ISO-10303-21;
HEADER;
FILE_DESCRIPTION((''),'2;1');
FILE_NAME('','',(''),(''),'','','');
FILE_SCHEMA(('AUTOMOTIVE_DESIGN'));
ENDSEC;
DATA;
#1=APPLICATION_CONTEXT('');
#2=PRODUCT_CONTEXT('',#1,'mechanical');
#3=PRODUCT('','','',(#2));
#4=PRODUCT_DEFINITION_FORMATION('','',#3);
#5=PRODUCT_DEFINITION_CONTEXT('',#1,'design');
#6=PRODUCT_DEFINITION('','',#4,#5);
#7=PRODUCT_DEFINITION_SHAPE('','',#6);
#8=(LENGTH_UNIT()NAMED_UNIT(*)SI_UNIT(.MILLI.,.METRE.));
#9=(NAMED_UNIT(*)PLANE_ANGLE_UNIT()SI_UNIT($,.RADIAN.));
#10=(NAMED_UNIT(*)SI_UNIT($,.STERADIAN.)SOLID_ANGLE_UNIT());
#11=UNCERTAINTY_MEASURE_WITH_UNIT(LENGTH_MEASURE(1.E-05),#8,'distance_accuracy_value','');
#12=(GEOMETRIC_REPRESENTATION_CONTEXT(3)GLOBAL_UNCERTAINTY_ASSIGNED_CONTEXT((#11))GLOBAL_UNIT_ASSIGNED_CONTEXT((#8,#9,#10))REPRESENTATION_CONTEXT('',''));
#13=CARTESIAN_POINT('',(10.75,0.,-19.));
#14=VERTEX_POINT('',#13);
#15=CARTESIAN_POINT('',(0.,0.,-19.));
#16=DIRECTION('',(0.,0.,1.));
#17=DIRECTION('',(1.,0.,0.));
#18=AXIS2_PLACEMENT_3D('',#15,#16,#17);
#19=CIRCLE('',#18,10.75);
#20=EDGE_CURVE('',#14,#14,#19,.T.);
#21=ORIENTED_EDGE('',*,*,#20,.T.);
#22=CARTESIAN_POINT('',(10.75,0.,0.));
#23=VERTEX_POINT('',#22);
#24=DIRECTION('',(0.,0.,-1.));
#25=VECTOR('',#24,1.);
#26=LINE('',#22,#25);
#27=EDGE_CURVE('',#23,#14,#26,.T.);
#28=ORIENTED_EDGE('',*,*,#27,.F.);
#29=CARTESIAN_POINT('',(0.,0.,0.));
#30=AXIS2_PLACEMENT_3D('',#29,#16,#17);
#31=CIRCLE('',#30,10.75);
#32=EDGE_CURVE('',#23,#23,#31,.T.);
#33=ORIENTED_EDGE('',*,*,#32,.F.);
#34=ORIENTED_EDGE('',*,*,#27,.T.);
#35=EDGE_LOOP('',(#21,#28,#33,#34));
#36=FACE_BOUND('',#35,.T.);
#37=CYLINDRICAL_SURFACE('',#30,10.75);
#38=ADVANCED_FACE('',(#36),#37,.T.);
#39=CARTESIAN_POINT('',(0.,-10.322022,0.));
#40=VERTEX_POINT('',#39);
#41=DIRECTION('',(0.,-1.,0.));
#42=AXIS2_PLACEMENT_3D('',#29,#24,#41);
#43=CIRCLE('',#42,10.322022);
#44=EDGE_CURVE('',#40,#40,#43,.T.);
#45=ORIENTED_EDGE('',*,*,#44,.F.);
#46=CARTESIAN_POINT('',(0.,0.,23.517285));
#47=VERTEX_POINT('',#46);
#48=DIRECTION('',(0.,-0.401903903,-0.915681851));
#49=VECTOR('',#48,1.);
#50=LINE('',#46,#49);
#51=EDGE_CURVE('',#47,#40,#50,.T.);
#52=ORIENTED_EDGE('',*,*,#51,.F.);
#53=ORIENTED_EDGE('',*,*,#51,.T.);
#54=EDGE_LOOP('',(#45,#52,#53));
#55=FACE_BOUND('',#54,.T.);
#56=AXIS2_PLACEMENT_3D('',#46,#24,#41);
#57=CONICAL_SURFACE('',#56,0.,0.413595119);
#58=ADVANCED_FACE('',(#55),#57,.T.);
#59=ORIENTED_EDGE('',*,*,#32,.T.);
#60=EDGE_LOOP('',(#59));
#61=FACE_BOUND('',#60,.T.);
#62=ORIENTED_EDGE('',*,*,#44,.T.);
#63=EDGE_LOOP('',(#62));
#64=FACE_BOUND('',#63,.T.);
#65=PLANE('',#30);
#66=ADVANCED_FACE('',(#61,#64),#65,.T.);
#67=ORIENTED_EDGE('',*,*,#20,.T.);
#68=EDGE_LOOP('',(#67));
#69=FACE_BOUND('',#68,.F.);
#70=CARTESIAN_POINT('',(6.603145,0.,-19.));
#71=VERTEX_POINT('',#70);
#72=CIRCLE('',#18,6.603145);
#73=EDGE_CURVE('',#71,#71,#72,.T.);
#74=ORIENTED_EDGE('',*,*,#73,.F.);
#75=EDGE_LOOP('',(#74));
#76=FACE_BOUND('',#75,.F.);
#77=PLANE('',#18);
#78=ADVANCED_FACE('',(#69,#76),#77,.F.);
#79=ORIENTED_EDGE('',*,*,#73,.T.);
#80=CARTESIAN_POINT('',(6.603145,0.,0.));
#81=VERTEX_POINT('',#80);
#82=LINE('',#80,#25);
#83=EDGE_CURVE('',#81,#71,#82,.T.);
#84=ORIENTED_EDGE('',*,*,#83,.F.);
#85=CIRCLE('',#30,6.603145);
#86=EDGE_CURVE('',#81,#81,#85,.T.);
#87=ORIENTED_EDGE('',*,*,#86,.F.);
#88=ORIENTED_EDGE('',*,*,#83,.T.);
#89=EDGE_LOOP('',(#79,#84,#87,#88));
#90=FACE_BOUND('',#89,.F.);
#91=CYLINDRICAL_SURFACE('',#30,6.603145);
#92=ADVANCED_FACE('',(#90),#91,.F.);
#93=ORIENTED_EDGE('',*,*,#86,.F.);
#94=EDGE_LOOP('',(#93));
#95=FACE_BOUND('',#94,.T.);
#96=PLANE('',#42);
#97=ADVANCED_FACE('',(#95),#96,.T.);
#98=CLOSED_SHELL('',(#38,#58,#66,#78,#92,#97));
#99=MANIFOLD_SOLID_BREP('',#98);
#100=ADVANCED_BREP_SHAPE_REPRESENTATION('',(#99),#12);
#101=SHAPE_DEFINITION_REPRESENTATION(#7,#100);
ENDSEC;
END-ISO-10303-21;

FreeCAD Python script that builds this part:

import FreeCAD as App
import Part
import Sketcher

V = App.Vector
Q = App.Units.Quantity


def add_polygon(sketch, points):
    """Adds a closed chain of lines whose ends are joined by coincident constraints."""
    first, n = sketch.GeometryCount, len(points)
    for a, b in zip(points, points[1:] + points[:1]):
        sketch.addGeometry(Part.LineSegment(App.Vector(*a, 0), App.Vector(*b, 0)), False)
    for i in range(n):
        sketch.addConstraint(Sketcher.Constraint("Coincident", first + i, 2, first + (i + 1) % n, 1))

doc = App.newDocument("Part")
params = doc.addObject("Spreadsheet::Sheet", "Params")
for row, (alias, value) in enumerate([
    ("sketch1_diameter", "21.5 mm"),
    ("pad1_length", "19 mm"),
    ("revolution_angle", "360 deg"),
], start=1):
    params.set(f"A{row}", alias)
    params.set(f"B{row}", "=" + value)
    params.setAlias(f"B{row}", alias)

body = doc.addObject("PartDesign::Body", "Body")

sketch1 = body.newObject("Sketcher::SketchObject", "Sketch")
sketch1.AttachmentSupport = (doc.getObject("XY_Plane"), [""])
sketch1.MapMode = "FlatFace"
sketch1.addGeometry([
    Part.Circle(V(0, 0, 0), V(0, 0, 1), 10.75),
    Part.Circle(V(0, 0, 0), V(0, 0, 1), 6.603145),
], False)
sketch1.addConstraint([
    Sketcher.Constraint("Coincident", 0, 3, -1, 1),
    Sketcher.Constraint("Coincident", 1, 3, -1, 1),
    Sketcher.Constraint("Diameter", 0, Q("21.5 mm")),
    Sketcher.Constraint("Diameter", 1, Q("13.206289 mm")),
])
sketch1.setExpression("Constraints[2]", "Params.sketch1_diameter")
pad1 = body.newObject("PartDesign::Pad", "Pad")
pad1.Profile = sketch1
pad1.setExpression("Length", "Params.pad1_length")
pad1.Reversed = True

sketch2 = body.newObject("Sketcher::SketchObject", "Sketch001")
sketch2.AttachmentSupport = (doc.getObject("YZ_Plane"), [""])
sketch2.MapMode = "FlatFace"
add_polygon(sketch2, [(-10.322022, 0), (0, 0), (0, 23.517285)])
sketch2.addConstraint([
    Sketcher.Constraint("Horizontal", 0),
    Sketcher.Constraint("Vertical", 1),
    Sketcher.Constraint("Coincident", 0, 2, -1, 1),
    Sketcher.Constraint("Distance", 2, Q("25.682812 mm")),
    Sketcher.Constraint("DistanceX", 0, 1, 0, 2, Q("10.322022 mm")),
])
revolution = body.newObject("PartDesign::Revolution", "Revolution")
revolution.Profile = sketch2
revolution.ReferenceAxis = (sketch2, ["V_Axis"])
revolution.setExpression("Angle", "Params.revolution_angle")

doc.recompute()
